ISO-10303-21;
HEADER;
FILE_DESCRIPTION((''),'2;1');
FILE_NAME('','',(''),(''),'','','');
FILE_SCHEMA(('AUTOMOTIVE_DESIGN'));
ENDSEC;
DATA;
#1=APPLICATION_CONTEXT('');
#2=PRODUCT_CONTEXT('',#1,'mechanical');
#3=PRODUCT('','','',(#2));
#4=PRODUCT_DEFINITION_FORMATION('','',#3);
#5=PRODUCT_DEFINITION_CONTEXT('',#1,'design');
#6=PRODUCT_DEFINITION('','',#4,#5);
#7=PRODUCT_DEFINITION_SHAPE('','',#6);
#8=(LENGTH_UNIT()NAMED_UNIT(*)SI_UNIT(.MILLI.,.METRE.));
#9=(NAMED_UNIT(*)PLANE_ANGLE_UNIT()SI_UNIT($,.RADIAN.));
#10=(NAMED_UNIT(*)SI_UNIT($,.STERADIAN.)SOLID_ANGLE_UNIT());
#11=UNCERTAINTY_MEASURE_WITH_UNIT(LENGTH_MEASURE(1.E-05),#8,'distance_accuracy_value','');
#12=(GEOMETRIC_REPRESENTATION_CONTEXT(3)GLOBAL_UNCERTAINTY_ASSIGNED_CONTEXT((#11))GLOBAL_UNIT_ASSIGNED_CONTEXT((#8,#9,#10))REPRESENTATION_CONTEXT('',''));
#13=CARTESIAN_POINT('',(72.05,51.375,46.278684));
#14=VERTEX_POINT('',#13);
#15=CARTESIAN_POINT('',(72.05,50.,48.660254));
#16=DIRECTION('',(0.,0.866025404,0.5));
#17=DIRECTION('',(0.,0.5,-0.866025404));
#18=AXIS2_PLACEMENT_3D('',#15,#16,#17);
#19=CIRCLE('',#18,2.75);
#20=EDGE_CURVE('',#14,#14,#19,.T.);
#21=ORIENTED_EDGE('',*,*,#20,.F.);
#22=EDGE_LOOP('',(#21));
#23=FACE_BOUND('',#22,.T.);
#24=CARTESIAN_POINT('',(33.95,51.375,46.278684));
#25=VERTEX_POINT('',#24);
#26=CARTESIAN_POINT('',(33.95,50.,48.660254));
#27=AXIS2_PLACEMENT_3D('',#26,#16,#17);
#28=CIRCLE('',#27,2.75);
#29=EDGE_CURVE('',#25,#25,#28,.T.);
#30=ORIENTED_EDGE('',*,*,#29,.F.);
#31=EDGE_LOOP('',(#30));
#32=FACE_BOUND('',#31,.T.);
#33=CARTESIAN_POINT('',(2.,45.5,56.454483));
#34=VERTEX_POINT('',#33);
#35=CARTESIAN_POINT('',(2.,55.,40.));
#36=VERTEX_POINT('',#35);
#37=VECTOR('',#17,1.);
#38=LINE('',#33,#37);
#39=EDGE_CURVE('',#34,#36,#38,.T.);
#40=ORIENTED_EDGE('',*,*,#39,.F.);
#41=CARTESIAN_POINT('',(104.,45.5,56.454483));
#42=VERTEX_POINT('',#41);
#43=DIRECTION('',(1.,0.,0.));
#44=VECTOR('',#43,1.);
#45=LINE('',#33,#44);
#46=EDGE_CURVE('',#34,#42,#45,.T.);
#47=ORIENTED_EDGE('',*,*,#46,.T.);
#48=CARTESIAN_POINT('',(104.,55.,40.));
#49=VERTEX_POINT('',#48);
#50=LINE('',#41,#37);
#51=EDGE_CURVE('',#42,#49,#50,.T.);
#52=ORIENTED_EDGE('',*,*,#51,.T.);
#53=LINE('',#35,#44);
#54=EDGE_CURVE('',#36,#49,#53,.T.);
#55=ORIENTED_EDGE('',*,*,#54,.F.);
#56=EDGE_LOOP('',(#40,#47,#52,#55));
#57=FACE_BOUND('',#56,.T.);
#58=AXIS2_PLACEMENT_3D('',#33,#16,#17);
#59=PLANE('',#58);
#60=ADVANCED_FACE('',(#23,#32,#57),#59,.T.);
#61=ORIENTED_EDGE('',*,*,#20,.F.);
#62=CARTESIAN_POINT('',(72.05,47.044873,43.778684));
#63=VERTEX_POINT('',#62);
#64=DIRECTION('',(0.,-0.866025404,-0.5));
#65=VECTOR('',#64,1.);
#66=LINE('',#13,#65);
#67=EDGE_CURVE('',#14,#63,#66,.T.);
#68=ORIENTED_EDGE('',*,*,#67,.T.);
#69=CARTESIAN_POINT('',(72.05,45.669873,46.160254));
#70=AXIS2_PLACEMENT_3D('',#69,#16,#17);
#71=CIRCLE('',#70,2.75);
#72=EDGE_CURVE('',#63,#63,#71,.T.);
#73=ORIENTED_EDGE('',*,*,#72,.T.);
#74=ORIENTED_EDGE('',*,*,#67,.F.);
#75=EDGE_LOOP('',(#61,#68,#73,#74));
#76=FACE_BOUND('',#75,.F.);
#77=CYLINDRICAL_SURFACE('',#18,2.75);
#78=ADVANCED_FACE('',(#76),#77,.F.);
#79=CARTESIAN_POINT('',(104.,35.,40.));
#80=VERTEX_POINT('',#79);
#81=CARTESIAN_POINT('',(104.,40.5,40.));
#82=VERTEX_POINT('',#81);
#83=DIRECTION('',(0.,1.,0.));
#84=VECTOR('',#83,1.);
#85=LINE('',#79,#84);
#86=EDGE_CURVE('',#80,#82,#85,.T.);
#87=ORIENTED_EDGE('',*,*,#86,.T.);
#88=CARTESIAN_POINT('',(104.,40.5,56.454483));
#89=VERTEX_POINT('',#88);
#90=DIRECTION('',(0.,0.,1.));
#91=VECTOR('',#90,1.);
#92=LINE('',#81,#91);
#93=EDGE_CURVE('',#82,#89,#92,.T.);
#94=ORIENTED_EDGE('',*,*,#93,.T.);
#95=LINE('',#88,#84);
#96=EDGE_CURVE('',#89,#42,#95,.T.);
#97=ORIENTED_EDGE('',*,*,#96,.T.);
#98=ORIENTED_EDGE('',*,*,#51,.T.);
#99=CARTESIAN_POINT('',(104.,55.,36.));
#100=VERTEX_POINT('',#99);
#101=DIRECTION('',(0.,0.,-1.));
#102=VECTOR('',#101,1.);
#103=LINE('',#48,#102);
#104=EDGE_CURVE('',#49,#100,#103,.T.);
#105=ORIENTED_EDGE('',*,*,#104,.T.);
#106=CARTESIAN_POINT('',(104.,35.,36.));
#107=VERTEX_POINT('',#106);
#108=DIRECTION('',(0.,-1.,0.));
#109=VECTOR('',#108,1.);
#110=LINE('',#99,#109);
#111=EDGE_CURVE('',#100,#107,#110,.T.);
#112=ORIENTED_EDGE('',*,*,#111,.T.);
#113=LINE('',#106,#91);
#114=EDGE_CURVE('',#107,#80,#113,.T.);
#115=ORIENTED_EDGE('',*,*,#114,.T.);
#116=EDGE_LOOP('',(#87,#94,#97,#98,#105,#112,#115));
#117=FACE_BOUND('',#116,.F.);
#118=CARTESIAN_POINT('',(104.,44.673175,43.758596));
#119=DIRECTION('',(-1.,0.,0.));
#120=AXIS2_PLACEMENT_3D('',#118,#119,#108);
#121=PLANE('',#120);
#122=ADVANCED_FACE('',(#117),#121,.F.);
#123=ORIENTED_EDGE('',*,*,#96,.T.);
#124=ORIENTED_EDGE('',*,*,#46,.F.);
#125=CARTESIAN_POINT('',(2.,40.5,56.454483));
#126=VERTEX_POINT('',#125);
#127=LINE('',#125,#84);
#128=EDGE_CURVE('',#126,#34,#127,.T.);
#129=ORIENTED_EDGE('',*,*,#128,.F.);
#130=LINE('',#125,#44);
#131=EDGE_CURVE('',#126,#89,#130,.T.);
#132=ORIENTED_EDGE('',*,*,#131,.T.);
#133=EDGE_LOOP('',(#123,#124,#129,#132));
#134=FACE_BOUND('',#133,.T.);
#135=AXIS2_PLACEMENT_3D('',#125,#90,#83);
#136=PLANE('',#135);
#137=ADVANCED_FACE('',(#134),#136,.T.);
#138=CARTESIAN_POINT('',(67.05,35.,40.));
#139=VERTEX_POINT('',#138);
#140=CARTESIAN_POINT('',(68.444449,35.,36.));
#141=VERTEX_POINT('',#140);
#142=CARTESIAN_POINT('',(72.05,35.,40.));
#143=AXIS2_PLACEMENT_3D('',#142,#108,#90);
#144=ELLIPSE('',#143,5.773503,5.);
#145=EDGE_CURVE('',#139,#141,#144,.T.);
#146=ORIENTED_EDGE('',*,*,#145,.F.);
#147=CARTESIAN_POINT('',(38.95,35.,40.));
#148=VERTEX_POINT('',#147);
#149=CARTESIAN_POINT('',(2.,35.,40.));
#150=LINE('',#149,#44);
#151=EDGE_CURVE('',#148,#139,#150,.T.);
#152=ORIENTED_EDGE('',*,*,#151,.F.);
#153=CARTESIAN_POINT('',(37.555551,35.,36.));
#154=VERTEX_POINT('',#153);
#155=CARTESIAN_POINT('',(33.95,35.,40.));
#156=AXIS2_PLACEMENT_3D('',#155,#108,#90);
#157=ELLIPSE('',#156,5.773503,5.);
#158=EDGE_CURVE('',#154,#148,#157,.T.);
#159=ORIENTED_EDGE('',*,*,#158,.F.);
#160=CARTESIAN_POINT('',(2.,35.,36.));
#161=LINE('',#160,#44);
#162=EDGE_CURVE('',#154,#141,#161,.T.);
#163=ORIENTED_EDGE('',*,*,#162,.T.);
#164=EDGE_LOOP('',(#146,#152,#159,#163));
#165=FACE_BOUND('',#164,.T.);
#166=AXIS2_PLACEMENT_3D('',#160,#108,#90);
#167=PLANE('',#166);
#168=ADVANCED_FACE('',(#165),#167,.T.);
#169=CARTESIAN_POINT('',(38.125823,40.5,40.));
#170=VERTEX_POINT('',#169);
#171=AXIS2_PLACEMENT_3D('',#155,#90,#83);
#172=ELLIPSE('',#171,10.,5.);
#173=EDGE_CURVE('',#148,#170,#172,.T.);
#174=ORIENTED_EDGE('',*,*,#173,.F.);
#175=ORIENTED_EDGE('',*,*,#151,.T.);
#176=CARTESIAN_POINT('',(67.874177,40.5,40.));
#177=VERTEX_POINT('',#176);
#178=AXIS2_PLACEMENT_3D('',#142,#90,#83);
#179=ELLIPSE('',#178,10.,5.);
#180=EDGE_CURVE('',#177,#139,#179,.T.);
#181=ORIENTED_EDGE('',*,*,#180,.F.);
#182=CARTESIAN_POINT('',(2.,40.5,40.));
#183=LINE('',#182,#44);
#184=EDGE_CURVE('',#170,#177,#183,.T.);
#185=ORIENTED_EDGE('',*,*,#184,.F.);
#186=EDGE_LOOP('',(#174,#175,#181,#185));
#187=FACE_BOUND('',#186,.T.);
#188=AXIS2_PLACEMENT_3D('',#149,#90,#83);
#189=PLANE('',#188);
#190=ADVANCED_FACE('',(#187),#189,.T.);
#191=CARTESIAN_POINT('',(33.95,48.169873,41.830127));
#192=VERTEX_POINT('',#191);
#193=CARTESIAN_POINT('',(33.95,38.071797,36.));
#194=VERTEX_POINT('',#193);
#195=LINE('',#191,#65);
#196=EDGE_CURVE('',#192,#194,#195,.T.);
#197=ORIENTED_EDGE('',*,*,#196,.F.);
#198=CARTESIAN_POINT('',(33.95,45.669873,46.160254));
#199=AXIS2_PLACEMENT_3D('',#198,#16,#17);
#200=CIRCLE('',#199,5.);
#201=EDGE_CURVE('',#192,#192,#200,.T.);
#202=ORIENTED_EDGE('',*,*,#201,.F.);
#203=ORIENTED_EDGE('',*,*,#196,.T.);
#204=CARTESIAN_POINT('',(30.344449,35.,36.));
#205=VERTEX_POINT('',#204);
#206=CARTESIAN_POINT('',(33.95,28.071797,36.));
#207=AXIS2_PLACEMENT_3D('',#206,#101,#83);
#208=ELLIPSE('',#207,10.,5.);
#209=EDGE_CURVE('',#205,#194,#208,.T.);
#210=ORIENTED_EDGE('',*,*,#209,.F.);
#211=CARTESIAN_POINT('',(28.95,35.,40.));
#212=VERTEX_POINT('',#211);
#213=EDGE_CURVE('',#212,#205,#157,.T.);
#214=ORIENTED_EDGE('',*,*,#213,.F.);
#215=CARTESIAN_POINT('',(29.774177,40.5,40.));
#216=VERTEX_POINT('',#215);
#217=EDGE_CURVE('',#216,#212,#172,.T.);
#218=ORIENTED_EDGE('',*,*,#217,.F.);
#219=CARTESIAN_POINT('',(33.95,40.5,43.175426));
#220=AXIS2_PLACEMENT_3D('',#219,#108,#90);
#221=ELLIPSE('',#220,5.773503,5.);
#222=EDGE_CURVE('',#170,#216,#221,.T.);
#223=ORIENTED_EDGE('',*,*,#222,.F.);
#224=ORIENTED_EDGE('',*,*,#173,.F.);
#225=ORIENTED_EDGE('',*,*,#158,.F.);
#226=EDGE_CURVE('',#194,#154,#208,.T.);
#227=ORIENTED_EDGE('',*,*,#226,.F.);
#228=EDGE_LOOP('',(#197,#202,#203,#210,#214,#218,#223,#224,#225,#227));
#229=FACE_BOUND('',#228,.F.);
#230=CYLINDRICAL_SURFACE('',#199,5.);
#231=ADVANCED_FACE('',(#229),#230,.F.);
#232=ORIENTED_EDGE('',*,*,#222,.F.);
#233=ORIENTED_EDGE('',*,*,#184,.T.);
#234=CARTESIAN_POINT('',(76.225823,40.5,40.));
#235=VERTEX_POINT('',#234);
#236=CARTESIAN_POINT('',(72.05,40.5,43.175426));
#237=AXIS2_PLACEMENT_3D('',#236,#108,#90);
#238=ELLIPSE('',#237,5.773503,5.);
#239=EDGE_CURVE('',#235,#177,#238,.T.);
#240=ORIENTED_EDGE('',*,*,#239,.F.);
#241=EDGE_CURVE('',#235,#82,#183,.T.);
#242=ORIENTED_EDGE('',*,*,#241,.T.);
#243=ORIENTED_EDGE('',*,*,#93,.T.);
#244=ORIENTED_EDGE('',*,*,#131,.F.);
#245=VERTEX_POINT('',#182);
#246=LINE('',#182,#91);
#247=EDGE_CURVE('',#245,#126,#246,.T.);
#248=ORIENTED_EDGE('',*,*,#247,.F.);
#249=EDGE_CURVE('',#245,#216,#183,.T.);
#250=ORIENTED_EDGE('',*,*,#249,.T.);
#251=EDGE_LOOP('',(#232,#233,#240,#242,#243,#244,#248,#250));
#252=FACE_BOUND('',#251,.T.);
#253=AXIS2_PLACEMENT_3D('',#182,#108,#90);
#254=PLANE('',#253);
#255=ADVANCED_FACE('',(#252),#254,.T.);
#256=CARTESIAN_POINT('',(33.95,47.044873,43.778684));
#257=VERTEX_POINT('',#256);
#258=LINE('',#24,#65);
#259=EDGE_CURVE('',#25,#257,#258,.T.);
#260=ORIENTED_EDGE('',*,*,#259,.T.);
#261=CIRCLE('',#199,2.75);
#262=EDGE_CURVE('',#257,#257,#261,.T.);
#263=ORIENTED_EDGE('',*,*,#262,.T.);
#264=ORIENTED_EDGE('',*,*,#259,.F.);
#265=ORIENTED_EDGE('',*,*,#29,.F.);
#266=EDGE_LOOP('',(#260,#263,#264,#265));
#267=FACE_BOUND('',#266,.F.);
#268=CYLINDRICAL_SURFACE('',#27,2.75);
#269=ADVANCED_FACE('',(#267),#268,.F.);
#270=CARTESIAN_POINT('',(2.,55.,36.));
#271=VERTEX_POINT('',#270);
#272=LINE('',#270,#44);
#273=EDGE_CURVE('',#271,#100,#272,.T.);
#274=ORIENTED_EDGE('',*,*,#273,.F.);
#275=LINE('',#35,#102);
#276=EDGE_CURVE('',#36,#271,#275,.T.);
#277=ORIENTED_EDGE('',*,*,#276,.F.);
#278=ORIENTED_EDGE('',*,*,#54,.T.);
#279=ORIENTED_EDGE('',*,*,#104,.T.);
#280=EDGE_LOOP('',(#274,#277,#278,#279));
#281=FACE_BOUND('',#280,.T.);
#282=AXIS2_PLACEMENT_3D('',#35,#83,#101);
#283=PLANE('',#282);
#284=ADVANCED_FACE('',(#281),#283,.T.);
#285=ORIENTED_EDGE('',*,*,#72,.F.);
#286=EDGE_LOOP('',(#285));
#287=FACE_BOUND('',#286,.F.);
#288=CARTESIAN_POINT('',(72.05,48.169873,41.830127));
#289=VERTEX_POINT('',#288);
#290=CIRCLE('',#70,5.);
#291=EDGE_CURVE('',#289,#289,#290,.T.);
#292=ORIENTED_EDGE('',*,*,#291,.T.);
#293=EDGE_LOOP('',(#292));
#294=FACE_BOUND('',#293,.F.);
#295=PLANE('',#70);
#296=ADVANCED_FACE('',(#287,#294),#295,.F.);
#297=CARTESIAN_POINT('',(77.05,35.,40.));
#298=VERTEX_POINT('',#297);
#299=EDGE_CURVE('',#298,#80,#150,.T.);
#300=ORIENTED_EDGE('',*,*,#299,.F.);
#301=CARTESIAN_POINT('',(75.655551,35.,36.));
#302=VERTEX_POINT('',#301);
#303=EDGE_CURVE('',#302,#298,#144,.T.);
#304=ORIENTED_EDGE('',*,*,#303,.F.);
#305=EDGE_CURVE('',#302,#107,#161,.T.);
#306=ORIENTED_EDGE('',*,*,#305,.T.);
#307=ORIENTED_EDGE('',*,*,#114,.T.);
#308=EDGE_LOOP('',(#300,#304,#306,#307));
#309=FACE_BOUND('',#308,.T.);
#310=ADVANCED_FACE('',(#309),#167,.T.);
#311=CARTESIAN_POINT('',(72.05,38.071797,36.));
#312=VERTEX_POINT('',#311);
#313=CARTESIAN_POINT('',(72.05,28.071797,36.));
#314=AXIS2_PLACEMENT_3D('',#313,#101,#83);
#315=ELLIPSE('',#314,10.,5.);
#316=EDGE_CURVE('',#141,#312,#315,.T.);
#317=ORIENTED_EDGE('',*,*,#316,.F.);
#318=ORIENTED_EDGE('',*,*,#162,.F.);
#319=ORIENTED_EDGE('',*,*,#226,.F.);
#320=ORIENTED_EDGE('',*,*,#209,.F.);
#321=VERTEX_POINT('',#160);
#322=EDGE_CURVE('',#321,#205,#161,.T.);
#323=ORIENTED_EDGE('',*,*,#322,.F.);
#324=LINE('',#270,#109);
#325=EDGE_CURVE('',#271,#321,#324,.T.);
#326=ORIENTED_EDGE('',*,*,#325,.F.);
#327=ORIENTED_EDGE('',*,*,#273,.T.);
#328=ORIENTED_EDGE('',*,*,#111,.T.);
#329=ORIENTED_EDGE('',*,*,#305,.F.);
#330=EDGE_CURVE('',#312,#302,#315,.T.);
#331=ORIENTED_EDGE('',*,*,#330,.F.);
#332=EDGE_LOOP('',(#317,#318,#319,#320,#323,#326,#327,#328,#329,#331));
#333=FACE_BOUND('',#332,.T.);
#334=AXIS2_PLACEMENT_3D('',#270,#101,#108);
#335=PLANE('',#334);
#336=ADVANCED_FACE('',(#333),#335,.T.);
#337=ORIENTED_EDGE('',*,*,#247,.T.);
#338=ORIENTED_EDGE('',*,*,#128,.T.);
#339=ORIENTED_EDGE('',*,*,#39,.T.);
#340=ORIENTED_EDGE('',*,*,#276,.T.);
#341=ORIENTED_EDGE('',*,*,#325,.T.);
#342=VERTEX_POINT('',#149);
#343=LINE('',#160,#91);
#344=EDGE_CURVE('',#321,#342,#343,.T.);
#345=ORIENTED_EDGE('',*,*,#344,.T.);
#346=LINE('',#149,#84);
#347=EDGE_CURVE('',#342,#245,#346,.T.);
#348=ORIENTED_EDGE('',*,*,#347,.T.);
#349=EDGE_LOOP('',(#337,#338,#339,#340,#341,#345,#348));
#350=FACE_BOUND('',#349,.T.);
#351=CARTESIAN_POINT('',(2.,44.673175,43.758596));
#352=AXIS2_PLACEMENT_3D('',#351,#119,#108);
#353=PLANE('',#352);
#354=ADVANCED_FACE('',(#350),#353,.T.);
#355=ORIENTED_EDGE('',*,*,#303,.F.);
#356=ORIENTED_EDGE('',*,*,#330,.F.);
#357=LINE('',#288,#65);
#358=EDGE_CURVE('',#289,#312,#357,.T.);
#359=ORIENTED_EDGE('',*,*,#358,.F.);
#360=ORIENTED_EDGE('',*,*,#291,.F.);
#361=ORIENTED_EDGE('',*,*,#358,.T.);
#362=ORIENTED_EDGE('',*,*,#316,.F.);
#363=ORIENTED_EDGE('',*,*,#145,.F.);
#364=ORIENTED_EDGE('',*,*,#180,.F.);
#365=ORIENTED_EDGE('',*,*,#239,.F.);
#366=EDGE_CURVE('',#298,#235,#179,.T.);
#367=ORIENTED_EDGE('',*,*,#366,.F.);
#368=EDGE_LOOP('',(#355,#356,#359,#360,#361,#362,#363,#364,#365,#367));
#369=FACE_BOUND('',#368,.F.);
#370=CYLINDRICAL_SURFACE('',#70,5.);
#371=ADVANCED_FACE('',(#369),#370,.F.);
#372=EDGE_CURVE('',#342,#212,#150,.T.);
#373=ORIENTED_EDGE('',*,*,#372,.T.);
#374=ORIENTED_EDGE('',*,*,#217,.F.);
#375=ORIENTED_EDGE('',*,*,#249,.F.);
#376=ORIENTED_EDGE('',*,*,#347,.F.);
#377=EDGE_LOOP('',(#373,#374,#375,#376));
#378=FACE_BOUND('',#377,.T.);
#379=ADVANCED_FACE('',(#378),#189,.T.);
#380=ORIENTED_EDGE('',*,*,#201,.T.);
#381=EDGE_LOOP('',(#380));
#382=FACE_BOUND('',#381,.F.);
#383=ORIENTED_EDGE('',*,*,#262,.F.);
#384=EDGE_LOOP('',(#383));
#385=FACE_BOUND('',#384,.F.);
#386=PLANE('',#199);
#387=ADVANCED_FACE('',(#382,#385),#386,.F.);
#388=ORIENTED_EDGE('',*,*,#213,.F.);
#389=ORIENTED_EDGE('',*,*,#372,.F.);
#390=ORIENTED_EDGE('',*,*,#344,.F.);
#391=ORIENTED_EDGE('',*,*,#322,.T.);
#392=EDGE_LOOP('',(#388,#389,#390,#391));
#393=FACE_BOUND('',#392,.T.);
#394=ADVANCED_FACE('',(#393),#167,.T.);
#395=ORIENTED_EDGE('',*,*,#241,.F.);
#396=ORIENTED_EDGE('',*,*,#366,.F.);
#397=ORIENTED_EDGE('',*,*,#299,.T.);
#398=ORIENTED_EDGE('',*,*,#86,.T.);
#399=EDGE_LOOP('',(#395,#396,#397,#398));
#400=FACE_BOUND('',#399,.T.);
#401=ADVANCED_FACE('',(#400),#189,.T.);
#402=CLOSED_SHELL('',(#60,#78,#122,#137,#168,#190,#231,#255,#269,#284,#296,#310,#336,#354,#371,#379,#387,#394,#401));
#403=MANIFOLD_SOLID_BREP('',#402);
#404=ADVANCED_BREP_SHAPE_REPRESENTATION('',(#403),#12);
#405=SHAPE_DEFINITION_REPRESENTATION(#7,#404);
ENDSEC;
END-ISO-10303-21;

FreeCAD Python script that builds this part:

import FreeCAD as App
import Part
import Sketcher
Q = App.Units.Quantity

doc = App.newDocument("Part")
body = doc.addObject("PartDesign::Body", "Body")

sketch1 = doc.addObject("Sketcher::SketchObject", "Sketch")
body.addObject(sketch1)
sketch1.AttachmentSupport = (doc.YZ_Plane, [""])
sketch1.MapMode = "FlatFace"
sketch1.addGeometry([
    Part.LineSegment(App.Vector(-5.5, 4, 0), App.Vector(-5.5, 20.5, 0)),
    Part.LineSegment(App.Vector(-5.5, 20.5, 0), App.Vector(-10.5, 20.5, 0)),
    Part.LineSegment(App.Vector(-10.5, 20.5, 0), App.Vector(-20, 4, 0)),
    Part.LineSegment(App.Vector(-20, 4, 0), App.Vector(-20, 0, 0)),
    Part.LineSegment(App.Vector(-20, 0, 0), App.Vector(0, 0, 0)),
    Part.LineSegment(App.Vector(0, 0, 0), App.Vector(0, 4, 0)),
    Part.LineSegment(App.Vector(0, 4, 0), App.Vector(-5.5, 4, 0)),
], False)
sketch1.addConstraint([
    Sketcher.Constraint("Coincident", 0, 2, 1, 1),
    Sketcher.Constraint("Coincident", 1, 2, 2, 1),
    Sketcher.Constraint("Coincident", 2, 2, 3, 1),
    Sketcher.Constraint("Coincident", 3, 2, 4, 1),
    Sketcher.Constraint("Coincident", 4, 2, 5, 1),
    Sketcher.Constraint("Coincident", 5, 2, 6, 1),
    Sketcher.Constraint("Coincident", 6, 2, 0, 1),
    Sketcher.Constraint("Vertical", 0),
    Sketcher.Constraint("Horizontal", 1),
    Sketcher.Constraint("Vertical", 3),
    Sketcher.Constraint("Horizontal", 4),
    Sketcher.Constraint("Vertical", 5),
    Sketcher.Constraint("Horizontal", 6),
    Sketcher.Constraint("Coincident", 4, 2, -1, 1),
    Sketcher.Constraint("Horizontal", 2, 2, 5, 2),
    Sketcher.Constraint("DistanceX", 1, 2, 1, 1, 5.0),
    Sketcher.Constraint("DistanceX", 4, 1, 4, 2, 20.0),
    Sketcher.Constraint("DistanceY", 3, 2, 3, 1, 4.0),
    Sketcher.Constraint("Angle", 2, Q("-120 deg")),
    Sketcher.Constraint("Distance", 2, 19.0),
])
pad1 = doc.addObject("PartDesign::Pad", "Pad")
body.addObject(pad1)
pad1.Profile = sketch1
pad1.Length = 102
pad1.Reversed = True

sketch2 = doc.addObject("Sketcher::SketchObject", "Sketch001")
body.addObject(sketch2)
sketch2.Placement = App.Placement(App.Vector(0, -16.732051, 9.660254), App.Rotation(App.Vector(0, -0.5, -0.866025404), App.Vector(1, 0, 0), App.Vector(0, -0.866025404, 0.5), "ZXY"))
sketch2.addGeometry([
    Part.Circle(App.Vector(-3.5, -32, 0), App.Vector(0, 0, 1), 2.8),
    Part.Circle(App.Vector(-3.5, -70.1, 0), App.Vector(0, 0, 1), 2.8),
], False)
sketch2.addConstraint([
    Sketcher.Constraint("Equal", 0, 1),
    Sketcher.Constraint("Vertical", 0, 3, 1, 3),
    Sketcher.Constraint("Diameter", 0, 5.5),
    Sketcher.Constraint("DistanceY", 1, 3, 0, 3, 38.1),
    Sketcher.Constraint("DistanceY", 0, 3, -1, 1, 31.95),
    Sketcher.Constraint("DistanceX", 0, 3, -1, 1, 3.464102),
])
pocket1 = doc.addObject("PartDesign::Pocket", "Pocket")
body.addObject(pocket1)
pocket1.Profile = sketch2
pocket1.Type = "ThroughAll"

sketch3 = doc.addObject("Sketcher::SketchObject", "Sketch002")
body.addObject(sketch3)
sketch3.Placement = App.Placement(App.Vector(0, -12.401924, 7.160254), App.Rotation(App.Vector(0, -0.5, -0.866025404), App.Vector(1, 0, 0), App.Vector(0, -0.866025404, 0.5), "ZXY"))
sketch3.addGeometry([
    Part.Circle(App.Vector(-3, -32, 0), App.Vector(0, 0, 1), 5),
    Part.Circle(App.Vector(-3, -70, 0), App.Vector(0, 0, 1), 5),
], False)
sketch3.addConstraint([
    Sketcher.Constraint("Equal", 0, 1),
    Sketcher.Constraint("Vertical", 0, 3, 1, 3),
    Sketcher.Constraint("Diameter", 0, 10.0),
    Sketcher.Constraint("DistanceY", 1, 3, 0, 3, 38.1),
    Sketcher.Constraint("DistanceY", 0, 3, -1, 1, 31.95),
    Sketcher.Constraint("DistanceX", 0, 3, -1, 1, 3.464102),
])
pocket2 = doc.addObject("PartDesign::Pocket", "Pocket001")
body.addObject(pocket2)
pocket2.Profile = sketch3
pocket2.Type = "ThroughAll"
body2 = doc.addObject("PartDesign::Body", "Body001")
doc.recompute()

body.Placement = App.Placement(App.Vector(2, 35, 36), App.Rotation(App.Vector(0, 0, 1), 180))
boolean = doc.addObject("PartDesign::Boolean", "Boolean")
body2.addObject(boolean)
boolean.Type = "Fuse"
boolean.addObjects([body])

doc.recompute()
